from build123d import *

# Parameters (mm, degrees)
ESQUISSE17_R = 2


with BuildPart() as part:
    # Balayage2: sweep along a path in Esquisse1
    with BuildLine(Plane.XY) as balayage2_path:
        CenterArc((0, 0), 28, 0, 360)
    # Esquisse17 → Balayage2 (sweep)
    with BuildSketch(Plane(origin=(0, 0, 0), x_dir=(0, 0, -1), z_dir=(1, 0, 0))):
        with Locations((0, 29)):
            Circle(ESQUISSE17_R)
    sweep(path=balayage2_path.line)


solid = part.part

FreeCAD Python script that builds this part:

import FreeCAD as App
import Part
import Sketcher

V = App.Vector

doc = App.newDocument("Part")
body = doc.addObject("PartDesign::Body", "Body")

sketch1 = body.newObject("Sketcher::SketchObject", "Sketch")
sketch1.AttachmentSupport = (doc.getObject("YZ_Plane"), [""])
sketch1.MapMode = "FlatFace"
sketch1.addGeometry(Part.Circle(V(29, 0, 0), V(0, 0, 1), 2), False)
sketch1.addConstraint([
    Sketcher.Constraint("PointOnObject", 0, 3, -1),
    Sketcher.Constraint("Diameter", 0, 4.0),
    Sketcher.Constraint("DistanceX", -1, 1, 0, 3, 29.0),
])

sketch2 = body.newObject("Sketcher::SketchObject", "Sketch001")
sketch2.AttachmentSupport = (doc.getObject("XY_Plane"), [""])
sketch2.MapMode = "FlatFace"
sketch2.addGeometry(Part.Circle(V(0, 0, 0), V(0, 0, 1), 28), False)
sketch2.addConstraint([
    Sketcher.Constraint("Coincident", 0, 3, -1, 1),
    Sketcher.Constraint("Diameter", 0, 56.0),
])
doc.recompute()

additivepipe = body.newObject("PartDesign::AdditivePipe", "AdditivePipe")
additivepipe.Profile = sketch1
additivepipe.Spine = (sketch2, ["Edge1"])

doc.recompute()
